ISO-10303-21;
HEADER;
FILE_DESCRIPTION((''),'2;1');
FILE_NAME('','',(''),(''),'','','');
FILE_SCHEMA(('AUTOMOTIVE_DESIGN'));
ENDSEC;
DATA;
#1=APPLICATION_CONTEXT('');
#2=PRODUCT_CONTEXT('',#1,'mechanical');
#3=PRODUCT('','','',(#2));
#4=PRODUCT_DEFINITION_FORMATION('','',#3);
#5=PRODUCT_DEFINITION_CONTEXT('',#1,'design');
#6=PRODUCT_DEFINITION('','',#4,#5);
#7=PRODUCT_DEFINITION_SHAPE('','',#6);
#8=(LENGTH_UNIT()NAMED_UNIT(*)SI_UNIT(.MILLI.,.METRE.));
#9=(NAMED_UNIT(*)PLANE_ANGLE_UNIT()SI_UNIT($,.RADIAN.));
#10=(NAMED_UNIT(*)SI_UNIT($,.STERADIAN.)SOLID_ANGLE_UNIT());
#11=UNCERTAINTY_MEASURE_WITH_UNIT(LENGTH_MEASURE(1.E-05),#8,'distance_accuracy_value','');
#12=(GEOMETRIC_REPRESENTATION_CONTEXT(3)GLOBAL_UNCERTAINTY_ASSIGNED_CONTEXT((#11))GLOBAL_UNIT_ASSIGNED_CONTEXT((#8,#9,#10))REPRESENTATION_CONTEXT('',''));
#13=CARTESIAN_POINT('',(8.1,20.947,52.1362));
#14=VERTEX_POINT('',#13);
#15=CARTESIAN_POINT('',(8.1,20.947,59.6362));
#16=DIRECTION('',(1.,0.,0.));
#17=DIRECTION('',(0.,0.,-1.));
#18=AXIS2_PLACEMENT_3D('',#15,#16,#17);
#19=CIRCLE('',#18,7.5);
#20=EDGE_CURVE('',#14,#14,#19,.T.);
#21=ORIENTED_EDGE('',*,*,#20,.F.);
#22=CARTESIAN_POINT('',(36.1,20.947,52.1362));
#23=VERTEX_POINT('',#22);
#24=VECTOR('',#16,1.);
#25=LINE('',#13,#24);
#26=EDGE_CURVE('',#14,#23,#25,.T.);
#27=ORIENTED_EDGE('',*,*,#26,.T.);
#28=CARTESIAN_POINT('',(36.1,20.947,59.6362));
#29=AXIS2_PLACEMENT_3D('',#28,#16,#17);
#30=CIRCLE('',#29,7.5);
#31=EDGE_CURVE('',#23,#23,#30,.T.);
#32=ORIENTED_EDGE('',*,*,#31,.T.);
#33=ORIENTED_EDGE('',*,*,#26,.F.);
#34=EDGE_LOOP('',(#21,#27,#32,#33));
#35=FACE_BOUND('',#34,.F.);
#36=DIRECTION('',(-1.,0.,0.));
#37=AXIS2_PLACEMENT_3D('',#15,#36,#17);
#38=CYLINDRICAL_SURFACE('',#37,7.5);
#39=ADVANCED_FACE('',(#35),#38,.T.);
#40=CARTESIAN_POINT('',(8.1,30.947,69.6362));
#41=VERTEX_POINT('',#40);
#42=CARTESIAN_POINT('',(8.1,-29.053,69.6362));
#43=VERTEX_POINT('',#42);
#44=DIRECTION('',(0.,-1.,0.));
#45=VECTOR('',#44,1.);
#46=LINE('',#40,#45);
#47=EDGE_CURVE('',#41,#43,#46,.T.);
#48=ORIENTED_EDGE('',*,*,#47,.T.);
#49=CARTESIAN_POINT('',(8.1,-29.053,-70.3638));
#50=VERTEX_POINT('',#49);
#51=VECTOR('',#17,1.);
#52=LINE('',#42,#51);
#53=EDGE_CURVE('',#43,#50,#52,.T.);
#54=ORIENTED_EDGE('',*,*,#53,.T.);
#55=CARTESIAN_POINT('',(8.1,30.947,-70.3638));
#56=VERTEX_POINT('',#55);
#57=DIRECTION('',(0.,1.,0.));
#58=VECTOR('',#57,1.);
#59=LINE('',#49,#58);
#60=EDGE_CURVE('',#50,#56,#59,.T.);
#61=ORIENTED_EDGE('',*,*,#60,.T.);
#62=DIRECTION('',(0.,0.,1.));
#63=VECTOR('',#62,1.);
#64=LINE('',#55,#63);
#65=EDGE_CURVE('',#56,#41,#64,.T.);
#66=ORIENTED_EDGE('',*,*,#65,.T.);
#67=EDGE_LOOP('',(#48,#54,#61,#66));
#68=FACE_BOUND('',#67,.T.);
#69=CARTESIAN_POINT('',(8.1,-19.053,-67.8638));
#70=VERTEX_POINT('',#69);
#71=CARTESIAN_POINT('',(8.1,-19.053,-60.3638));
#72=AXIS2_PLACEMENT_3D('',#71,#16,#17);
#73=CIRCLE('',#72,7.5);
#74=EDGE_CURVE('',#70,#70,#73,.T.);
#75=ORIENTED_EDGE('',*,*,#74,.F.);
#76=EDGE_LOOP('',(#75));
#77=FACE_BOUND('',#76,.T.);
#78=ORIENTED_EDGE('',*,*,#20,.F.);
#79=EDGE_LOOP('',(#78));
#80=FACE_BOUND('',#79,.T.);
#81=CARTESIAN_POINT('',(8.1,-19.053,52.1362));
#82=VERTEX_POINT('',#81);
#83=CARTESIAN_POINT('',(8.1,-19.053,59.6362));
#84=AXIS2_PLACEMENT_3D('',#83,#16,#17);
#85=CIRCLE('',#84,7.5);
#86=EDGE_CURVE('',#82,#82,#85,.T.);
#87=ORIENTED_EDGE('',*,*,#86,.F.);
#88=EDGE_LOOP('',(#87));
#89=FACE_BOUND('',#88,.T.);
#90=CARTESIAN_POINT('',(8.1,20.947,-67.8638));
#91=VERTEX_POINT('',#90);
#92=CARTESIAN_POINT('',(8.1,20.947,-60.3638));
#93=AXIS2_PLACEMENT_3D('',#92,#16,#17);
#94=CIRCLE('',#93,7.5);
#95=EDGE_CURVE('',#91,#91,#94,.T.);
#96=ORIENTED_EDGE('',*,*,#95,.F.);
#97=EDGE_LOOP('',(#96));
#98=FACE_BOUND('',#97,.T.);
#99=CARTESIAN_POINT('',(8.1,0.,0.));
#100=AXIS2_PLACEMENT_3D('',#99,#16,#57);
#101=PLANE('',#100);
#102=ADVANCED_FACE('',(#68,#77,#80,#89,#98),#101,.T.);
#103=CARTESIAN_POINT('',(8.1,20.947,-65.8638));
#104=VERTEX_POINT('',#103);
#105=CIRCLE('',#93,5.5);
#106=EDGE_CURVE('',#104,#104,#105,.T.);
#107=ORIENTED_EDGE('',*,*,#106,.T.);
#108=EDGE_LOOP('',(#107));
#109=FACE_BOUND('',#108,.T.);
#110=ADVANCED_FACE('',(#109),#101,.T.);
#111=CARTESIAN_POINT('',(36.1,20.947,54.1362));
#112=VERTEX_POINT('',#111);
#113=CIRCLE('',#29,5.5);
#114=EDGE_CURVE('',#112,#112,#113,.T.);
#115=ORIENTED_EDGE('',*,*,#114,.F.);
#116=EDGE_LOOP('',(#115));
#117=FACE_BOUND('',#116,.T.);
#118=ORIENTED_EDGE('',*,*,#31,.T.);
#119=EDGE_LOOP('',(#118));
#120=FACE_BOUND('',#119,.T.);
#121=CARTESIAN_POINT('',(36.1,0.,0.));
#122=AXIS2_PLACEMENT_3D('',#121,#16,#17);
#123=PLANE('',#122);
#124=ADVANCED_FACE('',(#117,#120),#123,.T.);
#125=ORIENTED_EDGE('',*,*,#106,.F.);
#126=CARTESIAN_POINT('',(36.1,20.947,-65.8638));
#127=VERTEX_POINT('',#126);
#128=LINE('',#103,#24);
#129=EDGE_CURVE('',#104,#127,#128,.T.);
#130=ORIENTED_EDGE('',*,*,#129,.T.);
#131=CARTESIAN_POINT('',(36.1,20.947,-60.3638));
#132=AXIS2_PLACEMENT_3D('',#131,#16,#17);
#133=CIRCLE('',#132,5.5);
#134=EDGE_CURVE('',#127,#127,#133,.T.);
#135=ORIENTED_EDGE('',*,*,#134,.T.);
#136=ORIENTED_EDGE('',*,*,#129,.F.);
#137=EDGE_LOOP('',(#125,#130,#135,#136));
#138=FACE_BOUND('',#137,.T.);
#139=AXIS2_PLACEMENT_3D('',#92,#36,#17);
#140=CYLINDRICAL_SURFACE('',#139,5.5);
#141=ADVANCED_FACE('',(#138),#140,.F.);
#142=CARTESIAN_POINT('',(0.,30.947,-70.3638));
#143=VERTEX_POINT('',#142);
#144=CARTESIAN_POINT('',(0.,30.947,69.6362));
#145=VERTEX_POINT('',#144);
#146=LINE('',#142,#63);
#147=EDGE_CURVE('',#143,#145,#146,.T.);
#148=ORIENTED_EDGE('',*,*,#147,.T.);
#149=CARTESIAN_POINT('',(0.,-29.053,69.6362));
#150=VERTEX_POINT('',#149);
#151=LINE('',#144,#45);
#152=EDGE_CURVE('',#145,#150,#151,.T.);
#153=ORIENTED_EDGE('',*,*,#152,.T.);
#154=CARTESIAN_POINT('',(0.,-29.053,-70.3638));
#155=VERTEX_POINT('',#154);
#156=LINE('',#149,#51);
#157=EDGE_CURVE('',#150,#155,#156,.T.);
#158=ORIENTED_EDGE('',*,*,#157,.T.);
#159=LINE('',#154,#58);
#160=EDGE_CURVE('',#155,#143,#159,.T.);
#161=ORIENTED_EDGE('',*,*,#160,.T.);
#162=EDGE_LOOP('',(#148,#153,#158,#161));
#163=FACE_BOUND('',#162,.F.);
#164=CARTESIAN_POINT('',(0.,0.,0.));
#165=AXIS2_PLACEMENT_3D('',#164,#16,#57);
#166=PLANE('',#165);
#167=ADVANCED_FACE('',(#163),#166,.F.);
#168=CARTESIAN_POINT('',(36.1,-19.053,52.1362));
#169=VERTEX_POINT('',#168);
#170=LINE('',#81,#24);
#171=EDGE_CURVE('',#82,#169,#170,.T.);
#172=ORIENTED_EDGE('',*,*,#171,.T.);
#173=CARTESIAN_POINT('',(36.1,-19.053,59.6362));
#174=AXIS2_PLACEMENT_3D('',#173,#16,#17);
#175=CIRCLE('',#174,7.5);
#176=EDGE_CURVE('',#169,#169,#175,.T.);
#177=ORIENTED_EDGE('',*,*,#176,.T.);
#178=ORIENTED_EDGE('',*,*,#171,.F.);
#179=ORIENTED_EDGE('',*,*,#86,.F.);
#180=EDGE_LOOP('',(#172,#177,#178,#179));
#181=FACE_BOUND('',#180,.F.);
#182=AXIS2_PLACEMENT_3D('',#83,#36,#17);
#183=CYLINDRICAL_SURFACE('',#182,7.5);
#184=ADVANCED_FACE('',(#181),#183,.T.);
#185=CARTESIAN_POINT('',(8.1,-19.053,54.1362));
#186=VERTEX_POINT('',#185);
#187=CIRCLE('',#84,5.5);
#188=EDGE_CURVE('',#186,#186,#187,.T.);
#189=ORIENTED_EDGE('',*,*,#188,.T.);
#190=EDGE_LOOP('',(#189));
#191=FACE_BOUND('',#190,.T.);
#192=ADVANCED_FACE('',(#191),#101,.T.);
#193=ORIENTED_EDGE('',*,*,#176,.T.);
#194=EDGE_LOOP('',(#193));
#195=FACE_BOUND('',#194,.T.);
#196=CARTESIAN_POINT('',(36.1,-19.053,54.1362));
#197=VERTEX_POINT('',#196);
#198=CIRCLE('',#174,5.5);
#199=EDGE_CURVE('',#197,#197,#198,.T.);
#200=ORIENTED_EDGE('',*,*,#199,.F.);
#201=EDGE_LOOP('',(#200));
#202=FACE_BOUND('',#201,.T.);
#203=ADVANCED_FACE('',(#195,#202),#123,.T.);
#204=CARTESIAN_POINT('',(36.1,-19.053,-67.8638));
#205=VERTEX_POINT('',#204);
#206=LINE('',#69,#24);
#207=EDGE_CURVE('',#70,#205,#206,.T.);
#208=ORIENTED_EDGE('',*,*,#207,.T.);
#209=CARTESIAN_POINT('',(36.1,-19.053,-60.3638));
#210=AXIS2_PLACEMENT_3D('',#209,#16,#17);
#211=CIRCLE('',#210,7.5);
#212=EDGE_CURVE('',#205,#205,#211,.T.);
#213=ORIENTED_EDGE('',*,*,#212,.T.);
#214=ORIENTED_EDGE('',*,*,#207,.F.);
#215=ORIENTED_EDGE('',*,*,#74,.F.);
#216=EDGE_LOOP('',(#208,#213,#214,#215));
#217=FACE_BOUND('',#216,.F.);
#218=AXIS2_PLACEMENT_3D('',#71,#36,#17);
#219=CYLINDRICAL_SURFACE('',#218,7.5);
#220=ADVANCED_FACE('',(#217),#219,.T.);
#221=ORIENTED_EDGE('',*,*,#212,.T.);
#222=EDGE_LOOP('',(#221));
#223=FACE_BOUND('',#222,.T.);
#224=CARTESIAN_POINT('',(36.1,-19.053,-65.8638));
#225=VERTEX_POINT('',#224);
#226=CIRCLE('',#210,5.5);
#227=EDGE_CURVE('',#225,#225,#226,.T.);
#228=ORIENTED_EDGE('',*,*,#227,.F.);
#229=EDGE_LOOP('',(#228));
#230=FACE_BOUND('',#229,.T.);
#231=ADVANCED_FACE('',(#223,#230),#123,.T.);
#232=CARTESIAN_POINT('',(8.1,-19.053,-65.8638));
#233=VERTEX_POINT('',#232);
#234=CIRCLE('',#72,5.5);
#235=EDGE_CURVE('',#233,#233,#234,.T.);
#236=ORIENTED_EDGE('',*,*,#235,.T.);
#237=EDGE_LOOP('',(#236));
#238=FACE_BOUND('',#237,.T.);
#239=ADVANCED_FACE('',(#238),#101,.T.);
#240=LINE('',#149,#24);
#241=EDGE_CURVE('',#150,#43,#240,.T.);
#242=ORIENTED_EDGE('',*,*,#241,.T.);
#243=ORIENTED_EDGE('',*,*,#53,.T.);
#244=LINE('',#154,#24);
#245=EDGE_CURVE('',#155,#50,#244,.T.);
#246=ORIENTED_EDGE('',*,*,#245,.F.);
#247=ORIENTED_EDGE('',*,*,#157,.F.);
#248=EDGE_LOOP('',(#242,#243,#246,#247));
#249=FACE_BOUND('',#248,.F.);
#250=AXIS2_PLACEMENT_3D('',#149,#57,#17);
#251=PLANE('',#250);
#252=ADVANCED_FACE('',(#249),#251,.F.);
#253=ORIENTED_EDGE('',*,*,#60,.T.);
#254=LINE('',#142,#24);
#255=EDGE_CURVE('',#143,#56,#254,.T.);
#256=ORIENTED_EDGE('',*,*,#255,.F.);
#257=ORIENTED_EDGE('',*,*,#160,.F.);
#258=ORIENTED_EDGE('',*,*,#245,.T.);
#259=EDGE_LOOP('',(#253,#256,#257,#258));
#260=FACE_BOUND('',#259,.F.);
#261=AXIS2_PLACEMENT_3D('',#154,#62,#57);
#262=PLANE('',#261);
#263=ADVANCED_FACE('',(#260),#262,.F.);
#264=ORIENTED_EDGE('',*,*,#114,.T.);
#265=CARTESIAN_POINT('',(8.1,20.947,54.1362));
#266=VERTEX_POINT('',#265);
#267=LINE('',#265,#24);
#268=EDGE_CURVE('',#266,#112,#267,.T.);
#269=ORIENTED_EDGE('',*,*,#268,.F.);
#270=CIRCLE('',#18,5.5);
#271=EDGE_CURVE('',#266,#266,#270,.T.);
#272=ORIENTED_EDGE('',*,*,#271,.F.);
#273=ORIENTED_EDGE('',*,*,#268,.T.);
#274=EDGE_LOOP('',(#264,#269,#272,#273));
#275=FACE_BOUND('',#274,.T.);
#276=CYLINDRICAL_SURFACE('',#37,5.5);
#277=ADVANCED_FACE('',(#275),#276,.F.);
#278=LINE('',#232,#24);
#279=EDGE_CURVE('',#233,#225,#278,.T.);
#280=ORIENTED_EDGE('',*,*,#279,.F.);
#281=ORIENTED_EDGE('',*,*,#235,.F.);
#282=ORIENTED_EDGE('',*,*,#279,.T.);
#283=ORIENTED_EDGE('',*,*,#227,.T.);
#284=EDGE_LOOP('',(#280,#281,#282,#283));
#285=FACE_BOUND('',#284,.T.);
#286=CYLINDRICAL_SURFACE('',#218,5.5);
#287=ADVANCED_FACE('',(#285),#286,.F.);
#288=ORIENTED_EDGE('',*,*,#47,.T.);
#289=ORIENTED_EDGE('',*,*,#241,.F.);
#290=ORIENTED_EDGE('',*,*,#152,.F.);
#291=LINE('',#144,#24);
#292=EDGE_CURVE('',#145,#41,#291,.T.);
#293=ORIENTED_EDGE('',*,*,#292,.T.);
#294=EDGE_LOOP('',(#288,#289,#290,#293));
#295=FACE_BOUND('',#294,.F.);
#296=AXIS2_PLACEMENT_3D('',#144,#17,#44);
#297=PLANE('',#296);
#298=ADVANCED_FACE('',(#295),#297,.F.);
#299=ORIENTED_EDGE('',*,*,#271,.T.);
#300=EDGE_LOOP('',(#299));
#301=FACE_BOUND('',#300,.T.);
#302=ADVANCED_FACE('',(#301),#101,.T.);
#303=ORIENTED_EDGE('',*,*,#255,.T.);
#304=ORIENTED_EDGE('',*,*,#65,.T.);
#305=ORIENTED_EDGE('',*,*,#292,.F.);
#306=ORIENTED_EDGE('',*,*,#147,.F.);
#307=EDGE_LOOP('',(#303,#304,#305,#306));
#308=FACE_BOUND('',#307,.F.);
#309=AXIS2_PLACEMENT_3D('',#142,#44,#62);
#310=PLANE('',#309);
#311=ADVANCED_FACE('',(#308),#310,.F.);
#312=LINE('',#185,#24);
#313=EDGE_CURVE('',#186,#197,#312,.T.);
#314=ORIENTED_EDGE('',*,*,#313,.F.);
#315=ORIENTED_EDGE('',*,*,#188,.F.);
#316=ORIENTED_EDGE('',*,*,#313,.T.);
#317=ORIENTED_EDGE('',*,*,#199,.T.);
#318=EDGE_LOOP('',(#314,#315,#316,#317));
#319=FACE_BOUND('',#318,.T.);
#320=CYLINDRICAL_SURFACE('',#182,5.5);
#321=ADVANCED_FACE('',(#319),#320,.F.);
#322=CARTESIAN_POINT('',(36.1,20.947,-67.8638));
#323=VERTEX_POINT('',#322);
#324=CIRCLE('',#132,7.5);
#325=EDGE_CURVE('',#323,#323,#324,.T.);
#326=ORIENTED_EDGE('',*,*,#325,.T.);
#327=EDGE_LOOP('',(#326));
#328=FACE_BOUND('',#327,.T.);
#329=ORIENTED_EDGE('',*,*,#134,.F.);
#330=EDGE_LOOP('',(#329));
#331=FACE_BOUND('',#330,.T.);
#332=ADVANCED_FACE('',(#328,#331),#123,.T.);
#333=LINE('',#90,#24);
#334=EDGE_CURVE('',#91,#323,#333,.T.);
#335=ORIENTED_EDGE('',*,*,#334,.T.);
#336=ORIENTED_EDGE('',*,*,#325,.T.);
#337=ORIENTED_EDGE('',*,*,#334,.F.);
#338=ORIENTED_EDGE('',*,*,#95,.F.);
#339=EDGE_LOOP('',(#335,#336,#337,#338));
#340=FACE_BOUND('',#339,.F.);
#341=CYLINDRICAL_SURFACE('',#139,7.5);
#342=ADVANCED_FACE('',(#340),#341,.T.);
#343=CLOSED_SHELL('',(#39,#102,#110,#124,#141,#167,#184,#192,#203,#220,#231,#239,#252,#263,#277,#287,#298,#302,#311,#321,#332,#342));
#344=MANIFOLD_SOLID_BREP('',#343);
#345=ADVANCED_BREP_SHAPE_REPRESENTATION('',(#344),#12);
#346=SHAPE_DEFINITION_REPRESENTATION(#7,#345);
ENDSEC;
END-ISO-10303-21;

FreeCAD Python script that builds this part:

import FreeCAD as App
import Part
import Sketcher
from FreeCAD import Vector
Q = App.Units.Quantity

doc = App.newDocument("Part")
params = doc.addObject("Spreadsheet::Sheet", "Params")
for row, (alias, value) in enumerate([
    ("sketch1_width", "60 mm"),
    ("sketch1_height", "140 mm"),
    ("pad1_length", "8.1 mm"),
    ("sketch2_diameter", "15 mm"),
    ("sketch2_diameter2", "11 mm"),
    ("pad2_length", "28 mm"),
], start=1):
    params.set(f"A{row}", alias)
    params.set(f"B{row}", "=" + value)
    params.setAlias(f"B{row}", alias)

body = doc.addObject("PartDesign::Body", "Body")

# Sketch on YZ plane
sketch1 = doc.addObject("Sketcher::SketchObject", "Sketch")
body.addObject(sketch1)
sketch1.AttachmentSupport = (doc.YZ_Plane, [""])
sketch1.MapMode = "FlatFace"
sketch1.addGeometry(Part.LineSegment(Vector(31, -70, 0), Vector(31, 70, 0)), False)
sketch1.addGeometry(Part.LineSegment(Vector(31, 70, 0), Vector(-29, 70, 0)), False)
sketch1.addGeometry(Part.LineSegment(Vector(-29, 70, 0), Vector(-29, -70, 0)), False)
sketch1.addGeometry(Part.LineSegment(Vector(-29, -70, 0), Vector(31, -70, 0)), False)
sketch1.addConstraint(Sketcher.Constraint("Coincident", 0, 2, 1, 1))
sketch1.addConstraint(Sketcher.Constraint("Coincident", 1, 2, 2, 1))
sketch1.addConstraint(Sketcher.Constraint("Coincident", 2, 2, 3, 1))
sketch1.addConstraint(Sketcher.Constraint("Coincident", 3, 2, 0, 1))
sketch1.addConstraint(Sketcher.Constraint("Vertical", 0))
sketch1.addConstraint(Sketcher.Constraint("Horizontal", 1))
sketch1.addConstraint(Sketcher.Constraint("Vertical", 2))
sketch1.addConstraint(Sketcher.Constraint("Horizontal", 3))
sketch1.addConstraint(Sketcher.Constraint("DistanceX", 1, 2, 1, 1, Q("60 mm")))
sketch1.addConstraint(Sketcher.Constraint("DistanceY", 0, 1, 0, 2, Q("140 mm")))
sketch1.addConstraint(Sketcher.Constraint("DistanceX", -1, 1, 0, 2, Q("30.947 mm")))
sketch1.addConstraint(Sketcher.Constraint("DistanceY", -1, 1, 0, 2, Q("69.6362 mm")))
sketch1.setExpression("Constraints[8]", "Params.sketch1_width")
sketch1.setExpression("Constraints[9]", "Params.sketch1_height")
pad1 = doc.addObject("PartDesign::Pad", "Pad")
body.addObject(pad1)
pad1.Profile = sketch1
pad1.setExpression("Length", "Params.pad1_length")

# Sketch on YZ plane
sketch2 = doc.addObject("Sketcher::SketchObject", "Sketch001")
body.addObject(sketch2)
sketch2.AttachmentSupport = (doc.YZ_Plane, [""])
sketch2.MapMode = "FlatFace"
sketch2.AttachmentOffset = App.Placement(Vector(0, 0, 8.1), App.Rotation())
sketch2.addGeometry(Part.Circle(Vector(21, 60, 0), Vector(0, 0, 1), 8), False)
sketch2.addGeometry(Part.Circle(Vector(21, 60, 0), Vector(0, 0, 1), 6), False)
sketch2.addGeometry(Part.Circle(Vector(-19, 60, 0), Vector(0, 0, 1), 8), False)
sketch2.addGeometry(Part.Circle(Vector(-19, 60, 0), Vector(0, 0, 1), 6), False)
sketch2.addGeometry(Part.Circle(Vector(21, -60, 0), Vector(0, 0, 1), 8), False)
sketch2.addGeometry(Part.Circle(Vector(21, -60, 0), Vector(0, 0, 1), 6), False)
sketch2.addGeometry(Part.Circle(Vector(-19, -60, 0), Vector(0, 0, 1), 8), False)
sketch2.addGeometry(Part.Circle(Vector(-19, -60, 0), Vector(0, 0, 1), 6), False)
sketch2.addConstraint(Sketcher.Constraint("Coincident", 1, 3, 0, 3))
sketch2.addConstraint(Sketcher.Constraint("Coincident", 3, 3, 2, 3))
sketch2.addConstraint(Sketcher.Constraint("Coincident", 5, 3, 4, 3))
sketch2.addConstraint(Sketcher.Constraint("Coincident", 7, 3, 6, 3))
sketch2.addConstraint(Sketcher.Constraint("Equal", 0, 2))
sketch2.addConstraint(Sketcher.Constraint("Equal", 1, 3))
sketch2.addConstraint(Sketcher.Constraint("Equal", 2, 4))
sketch2.addConstraint(Sketcher.Constraint("Equal", 3, 5))
sketch2.addConstraint(Sketcher.Constraint("Equal", 4, 6))
sketch2.addConstraint(Sketcher.Constraint("Equal", 5, 7))
sketch2.addConstraint(Sketcher.Constraint("Horizontal", 1, 3, 2, 3))
sketch2.addConstraint(Sketcher.Constraint("Horizontal", 5, 3, 6, 3))
sketch2.addConstraint(Sketcher.Constraint("Vertical", 1, 3, 4, 3))
sketch2.addConstraint(Sketcher.Constraint("Vertical", 3, 3, 6, 3))
sketch2.addConstraint(Sketcher.Constraint("Diameter", 0, Q("15 mm")))
sketch2.addConstraint(Sketcher.Constraint("Diameter", 1, Q("11 mm")))
sketch2.addConstraint(Sketcher.Constraint("DistanceX", 2, 3, 0, 3, Q("40 mm")))
sketch2.addConstraint(Sketcher.Constraint("DistanceY", 4, 3, 0, 3, Q("120 mm")))
sketch2.addConstraint(Sketcher.Constraint("DistanceX", -1, 1, 0, 3, Q("20.947 mm")))
sketch2.addConstraint(Sketcher.Constraint("DistanceY", -1, 1, 0, 3, Q("59.6362 mm")))
sketch2.setExpression("Constraints[14]", "Params.sketch2_diameter")
sketch2.setExpression("Constraints[15]", "Params.sketch2_diameter2")
pad2 = doc.addObject("PartDesign::Pad", "Pad001")
body.addObject(pad2)
pad2.Profile = sketch2
pad2.setExpression("Length", "Params.pad2_length")

doc.recompute()
